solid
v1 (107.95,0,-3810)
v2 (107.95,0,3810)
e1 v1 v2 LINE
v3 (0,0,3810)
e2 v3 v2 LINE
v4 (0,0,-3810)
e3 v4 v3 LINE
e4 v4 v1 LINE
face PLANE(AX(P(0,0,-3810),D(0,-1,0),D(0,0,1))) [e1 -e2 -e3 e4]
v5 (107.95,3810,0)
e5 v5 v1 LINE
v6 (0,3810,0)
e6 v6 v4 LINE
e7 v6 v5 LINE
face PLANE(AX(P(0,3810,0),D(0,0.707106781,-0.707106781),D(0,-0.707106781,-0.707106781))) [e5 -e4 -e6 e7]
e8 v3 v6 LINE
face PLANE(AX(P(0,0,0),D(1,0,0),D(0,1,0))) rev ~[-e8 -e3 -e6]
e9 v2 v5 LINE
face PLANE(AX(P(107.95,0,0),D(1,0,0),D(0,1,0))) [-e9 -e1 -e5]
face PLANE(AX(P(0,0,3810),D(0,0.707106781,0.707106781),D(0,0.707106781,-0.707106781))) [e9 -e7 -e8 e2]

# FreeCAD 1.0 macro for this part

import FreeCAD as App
import Part
import Sketcher
Q = App.Units.Quantity


def add_polygon(sketch, points):
    """Adds a closed chain of lines whose ends are joined by coincident constraints."""
    first, n = sketch.GeometryCount, len(points)
    for a, b in zip(points, points[1:] + points[:1]):
        sketch.addGeometry(Part.LineSegment(App.Vector(*a, 0), App.Vector(*b, 0)), False)
    for i in range(n):
        sketch.addConstraint(Sketcher.Constraint("Coincident", first + i, 2, first + (i + 1) % n, 1))

doc = App.newDocument("Part")
body = doc.addObject("PartDesign::Body", "Body")

# Sketch on YZ plane
sketch1 = doc.addObject("Sketcher::SketchObject", "Sketch")
body.addObject(sketch1)
sketch1.AttachmentSupport = (doc.YZ_Plane, [""])
sketch1.MapMode = "FlatFace"
add_polygon(sketch1, [(3810, 0), (0, 3810), (0, -3810)])  # lines 0-2
sketch1.addConstraint([
    Sketcher.Constraint("Vertical", 1),
    Sketcher.Constraint("Symmetric", 0, 2, 1, 2, -1, 1),
    Sketcher.Constraint("PointOnObject", 2, 2, -1),
    Sketcher.Constraint("Perpendicular", 0, 2),
    Sketcher.Constraint("DistanceY", 1, 2, 1, 1, Q("300 in")),
])
pad1 = doc.addObject("PartDesign::Pad", "Pad")
body.addObject(pad1)
pad1.Profile = sketch1
pad1.Length = Q("4.25 in")

doc.recompute()
